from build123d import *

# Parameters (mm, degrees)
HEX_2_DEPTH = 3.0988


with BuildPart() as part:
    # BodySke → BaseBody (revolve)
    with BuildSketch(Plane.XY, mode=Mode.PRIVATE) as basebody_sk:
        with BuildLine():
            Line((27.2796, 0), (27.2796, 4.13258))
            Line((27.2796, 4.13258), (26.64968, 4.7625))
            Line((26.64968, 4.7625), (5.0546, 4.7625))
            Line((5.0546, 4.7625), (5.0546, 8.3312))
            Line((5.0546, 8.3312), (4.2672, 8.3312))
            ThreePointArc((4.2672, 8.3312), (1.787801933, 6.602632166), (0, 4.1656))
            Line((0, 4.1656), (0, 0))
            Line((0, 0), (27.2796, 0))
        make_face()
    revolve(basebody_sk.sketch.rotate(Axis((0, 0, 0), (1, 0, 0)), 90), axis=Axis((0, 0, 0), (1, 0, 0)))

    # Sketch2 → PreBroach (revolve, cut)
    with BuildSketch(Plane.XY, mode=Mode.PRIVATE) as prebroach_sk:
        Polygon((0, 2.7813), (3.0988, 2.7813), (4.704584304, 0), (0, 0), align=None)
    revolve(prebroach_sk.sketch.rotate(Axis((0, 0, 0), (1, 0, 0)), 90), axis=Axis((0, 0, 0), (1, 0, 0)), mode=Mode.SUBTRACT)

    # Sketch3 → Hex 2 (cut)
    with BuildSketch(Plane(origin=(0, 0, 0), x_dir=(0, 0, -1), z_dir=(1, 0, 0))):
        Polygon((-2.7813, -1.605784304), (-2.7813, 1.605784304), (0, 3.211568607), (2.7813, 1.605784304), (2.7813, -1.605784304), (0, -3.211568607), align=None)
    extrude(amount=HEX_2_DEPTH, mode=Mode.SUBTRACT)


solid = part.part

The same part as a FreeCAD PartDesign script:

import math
import FreeCAD as App
import Part
import Sketcher

V = App.Vector
Q = App.Units.Quantity


def add_polygon(sketch, points):
    """Adds a closed chain of lines whose ends are joined by coincident constraints."""
    first, n = sketch.GeometryCount, len(points)
    for a, b in zip(points, points[1:] + points[:1]):
        sketch.addGeometry(Part.LineSegment(App.Vector(*a, 0), App.Vector(*b, 0)), False)
    for i in range(n):
        sketch.addConstraint(Sketcher.Constraint("Coincident", first + i, 2, first + (i + 1) % n, 1))

doc = App.newDocument("Part")
body = doc.addObject("PartDesign::Body", "Body")

# Sketch on XY plane
sketch1 = body.newObject("Sketcher::SketchObject", "Sketch")
sketch1.AttachmentSupport = (doc.getObject("XY_Plane"), [""])
sketch1.MapMode = "FlatFace"
sketch1.addGeometry([
    Part.LineSegment(V(27.2796, 0, 0), V(27.2796, 4.13258, 0)),  # 0
    Part.LineSegment(V(27.2796, 4.13258, 0), V(26.64968, 4.7625, 0)),  # 1
    Part.LineSegment(V(26.64968, 4.7625, 0), V(5.0546, 4.7625, 0)),  # 2
    Part.LineSegment(V(5.0546, 4.7625, 0), V(5.0546, 8.3312, 0)),  # 3
    Part.LineSegment(V(5.0546, 8.3312, 0), V(4.2672, 8.3312, 0)),  # 4
    Part.ArcOfCircle(Part.Circle(V(8.233229, 0, 0), V(0, 0, 1), 9.22704), math.radians(115.456564), math.radians(153.162882)),  # 5
    Part.LineSegment(V(0, 4.1656, 0), V(0, 0, 0)),  # 6
    Part.LineSegment(V(0, 0, 0), V(27.2796, 0, 0)),  # 7
], False)
sketch1.addConstraint([
    Sketcher.Constraint("Coincident", 0, 2, 1, 1),
    Sketcher.Constraint("Coincident", 1, 2, 2, 1),
    Sketcher.Constraint("Coincident", 2, 2, 3, 1),
    Sketcher.Constraint("Coincident", 3, 2, 4, 1),
    Sketcher.Constraint("Coincident", 4, 2, 5, 1),
    Sketcher.Constraint("Coincident", 5, 2, 6, 1),
    Sketcher.Constraint("Coincident", 6, 2, 7, 1),
    Sketcher.Constraint("Coincident", 7, 2, 0, 1),
    Sketcher.Constraint("Vertical", 0),
    Sketcher.Constraint("Horizontal", 2),
    Sketcher.Constraint("Vertical", 3),
    Sketcher.Constraint("Horizontal", 4),
    Sketcher.Constraint("Vertical", 6),
    Sketcher.Constraint("Horizontal", 7),
    Sketcher.Constraint("Coincident", 6, 2, -1, 1),
    Sketcher.Constraint("PointOnObject", 5, 3, -1),
    Sketcher.Constraint("Angle", 1, Q("135 deg")),
    Sketcher.Constraint("DistanceX", 4, 2, 4, 1, Q("0.031 in")),
    Sketcher.Constraint("DistanceX", 7, 1, 7, 2, Q("1.074 in")),
    Sketcher.Constraint("DistanceY", 6, 2, 6, 1, Q("0.164 in")),
    Sketcher.Constraint("DistanceX", 2, 2, 2, 1, Q("0.8502 in")),
    Sketcher.Constraint("DistanceY", 0, 1, 0, 2, Q("0.1627 in")),
    Sketcher.Constraint("DistanceY", 3, 1, 3, 2, Q("0.1405 in")),
    Sketcher.Constraint("DistanceY", -1, 1, 1, 2, Q("0.1875 in")),
])
revolution = body.newObject("PartDesign::Revolution", "Revolution")
revolution.Profile = sketch1
revolution.ReferenceAxis = (sketch1, ["H_Axis"])
revolution.Angle = 360

# Sketch on XY plane
sketch2 = body.newObject("Sketcher::SketchObject", "Sketch001")
sketch2.AttachmentSupport = (doc.getObject("XY_Plane"), [""])
sketch2.MapMode = "FlatFace"
add_polygon(sketch2, [(3.0988, 2.7813), (0, 2.7813), (0, 0), (4.704584, 0)])  # lines 0-3
sketch2.addConstraint([
    Sketcher.Constraint("Horizontal", 0),
    Sketcher.Constraint("Vertical", 1),
    Sketcher.Constraint("Horizontal", 2),
    Sketcher.Constraint("Coincident", 1, 2, -1, 1),
    Sketcher.Constraint("Angle", 3, Q("120 deg")),
    Sketcher.Constraint("DistanceX", 0, 2, 0, 1, Q("0.122 in")),
    Sketcher.Constraint("DistanceY", 1, 2, 1, 1, Q("0.1095 in")),
])
groove = body.newObject("PartDesign::Groove", "Groove")
groove.Profile = sketch2
groove.ReferenceAxis = (sketch2, ["H_Axis"])
groove.Angle = 360

# Sketch on YZ plane
sketch3 = body.newObject("Sketcher::SketchObject", "Sketch002")
sketch3.AttachmentSupport = (doc.getObject("YZ_Plane"), [""])
sketch3.MapMode = "FlatFace"
add_polygon(sketch3, [(1.605784, 2.7813), (-1.605784, 2.7813), (-3.211569, 0), (-1.605784, -2.7813), (1.605784, -2.7813), (3.211569, 0)])  # lines 0-5
sketch3.addConstraint([
    Sketcher.Constraint("Horizontal", 0),
    Sketcher.Constraint("Horizontal", 3),
    Sketcher.Constraint("Symmetric", 0, 2, 3, 2, -1, 1),
    Sketcher.Constraint("Symmetric", 1, 2, 4, 2, -1, 1),
    Sketcher.Constraint("PointOnObject", 1, 2, -1),
    Sketcher.Constraint("Parallel", 2, 5),
    Sketcher.Constraint("Vertical", 0, 2, 2, 2),
    Sketcher.Constraint("Angle", 1, Q("-120 deg")),
    Sketcher.Constraint("DistanceY", 2, 2, 0, 2, Q("0.219 in")),
    Sketcher.Constraint("DistanceX", 0, 2, 0, 1, Q("3.211569 mm")),
])
pocket1 = body.newObject("PartDesign::Pocket", "Pocket")
pocket1.Profile = sketch3
pocket1.Length = Q("0.122 in")
pocket1.Reversed = True

doc.recompute()
